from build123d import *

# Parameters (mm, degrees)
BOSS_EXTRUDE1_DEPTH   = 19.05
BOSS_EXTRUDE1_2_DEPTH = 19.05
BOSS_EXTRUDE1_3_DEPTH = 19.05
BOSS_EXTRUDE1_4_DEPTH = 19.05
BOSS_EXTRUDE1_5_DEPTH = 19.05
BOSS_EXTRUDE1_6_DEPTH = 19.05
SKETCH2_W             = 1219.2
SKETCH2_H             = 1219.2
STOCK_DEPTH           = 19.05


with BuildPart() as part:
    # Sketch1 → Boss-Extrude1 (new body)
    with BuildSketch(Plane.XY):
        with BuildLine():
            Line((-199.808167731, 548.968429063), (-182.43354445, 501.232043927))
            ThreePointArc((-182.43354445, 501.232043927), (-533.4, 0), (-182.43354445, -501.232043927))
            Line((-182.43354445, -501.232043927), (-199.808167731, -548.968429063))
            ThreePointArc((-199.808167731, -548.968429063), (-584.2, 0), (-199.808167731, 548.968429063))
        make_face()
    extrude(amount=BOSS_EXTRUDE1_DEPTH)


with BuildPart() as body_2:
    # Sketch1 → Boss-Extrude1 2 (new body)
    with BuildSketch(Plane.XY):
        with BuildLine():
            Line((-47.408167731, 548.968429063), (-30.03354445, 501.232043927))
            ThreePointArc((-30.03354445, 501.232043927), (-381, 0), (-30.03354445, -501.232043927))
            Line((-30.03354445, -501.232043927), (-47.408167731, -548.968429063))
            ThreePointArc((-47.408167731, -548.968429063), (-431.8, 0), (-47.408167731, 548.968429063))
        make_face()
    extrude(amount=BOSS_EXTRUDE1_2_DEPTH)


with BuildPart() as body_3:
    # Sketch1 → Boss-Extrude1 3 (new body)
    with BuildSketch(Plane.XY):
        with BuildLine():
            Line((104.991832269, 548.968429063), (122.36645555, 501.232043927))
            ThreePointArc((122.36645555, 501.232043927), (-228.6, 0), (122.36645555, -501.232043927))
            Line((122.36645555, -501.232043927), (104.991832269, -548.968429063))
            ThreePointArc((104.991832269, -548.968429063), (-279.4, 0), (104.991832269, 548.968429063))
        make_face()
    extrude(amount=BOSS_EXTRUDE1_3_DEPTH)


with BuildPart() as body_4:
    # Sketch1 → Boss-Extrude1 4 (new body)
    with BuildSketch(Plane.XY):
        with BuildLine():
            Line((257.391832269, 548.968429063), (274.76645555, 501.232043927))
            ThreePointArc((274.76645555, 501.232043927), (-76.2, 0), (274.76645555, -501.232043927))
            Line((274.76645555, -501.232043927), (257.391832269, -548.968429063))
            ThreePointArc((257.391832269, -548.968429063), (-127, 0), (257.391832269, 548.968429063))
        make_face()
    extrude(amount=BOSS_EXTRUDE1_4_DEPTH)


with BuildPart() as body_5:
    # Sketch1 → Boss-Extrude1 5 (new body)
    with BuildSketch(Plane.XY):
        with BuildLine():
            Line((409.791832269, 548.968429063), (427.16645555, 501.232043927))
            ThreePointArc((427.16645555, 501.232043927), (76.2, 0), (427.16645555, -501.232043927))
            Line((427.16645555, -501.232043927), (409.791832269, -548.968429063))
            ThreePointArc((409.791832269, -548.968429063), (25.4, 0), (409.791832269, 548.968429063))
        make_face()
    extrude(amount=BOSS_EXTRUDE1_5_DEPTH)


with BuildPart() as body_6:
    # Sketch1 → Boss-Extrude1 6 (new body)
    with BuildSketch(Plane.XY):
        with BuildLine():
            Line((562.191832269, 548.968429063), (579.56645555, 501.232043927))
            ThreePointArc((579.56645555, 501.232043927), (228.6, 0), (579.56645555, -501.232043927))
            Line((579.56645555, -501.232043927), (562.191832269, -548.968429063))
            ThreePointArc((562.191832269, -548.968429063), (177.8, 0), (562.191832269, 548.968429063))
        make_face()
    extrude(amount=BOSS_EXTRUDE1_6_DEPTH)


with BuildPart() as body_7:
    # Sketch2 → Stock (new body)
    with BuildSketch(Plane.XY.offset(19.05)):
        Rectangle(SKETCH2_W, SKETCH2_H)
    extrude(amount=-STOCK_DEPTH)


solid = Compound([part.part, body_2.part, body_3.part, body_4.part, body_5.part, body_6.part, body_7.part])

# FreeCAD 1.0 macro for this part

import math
import FreeCAD as App
import Part
import Sketcher
Q = App.Units.Quantity

doc = App.newDocument("Part")
body = doc.addObject("PartDesign::Body", "Body")

sketch1 = body.newObject("Sketcher::SketchObject", "Sketch")
sketch1.AttachmentSupport = (doc.getObject("XY_Plane"), [""])
sketch1.MapMode = "FlatFace"
sketch1.addGeometry([
    Part.LineSegment(App.Vector(-182, 501, 0), App.Vector(-200, 549, 0)),
    Part.ArcOfCircle(Part.Circle(App.Vector(0, 0, 0), App.Vector(0, 0, 1), 584), math.radians(110), math.radians(250)),
    Part.LineSegment(App.Vector(-200, -549, 0), App.Vector(-182, -501, 0)),
    Part.ArcOfCircle(Part.Circle(App.Vector(0, 0, 0), App.Vector(0, 0, 1), 533), math.radians(110), math.radians(250)),
], False)
sketch1.addConstraint([
    Sketcher.Constraint("Coincident", 0, 2, 1, 1),
    Sketcher.Constraint("Coincident", 1, 2, 2, 1),
    Sketcher.Constraint("Coincident", 2, 2, 3, 2),
    Sketcher.Constraint("Coincident", 3, 1, 0, 1),
    Sketcher.Constraint("Coincident", 1, 3, -1, 1),
    Sketcher.Constraint("Coincident", 3, 3, -1, 1),
    Sketcher.Constraint("Vertical", 0, 2, 1, 2),
    Sketcher.Constraint("Vertical", 2, 2, 3, 1),
    Sketcher.Constraint("Radius", 1, Q("23 in")),
    Sketcher.Constraint("Radius", 3, Q("21 in")),
    Sketcher.Constraint("Angle", 0, Q("110 deg")),
    Sketcher.Constraint("DistanceY", -1, 1, 0, 2, 548.968429),
])
pad1 = body.newObject("PartDesign::Pad", "Pad")
pad1.Profile = sketch1
pad1.Length = Q("0.75 in")
body2 = doc.addObject("PartDesign::Body", "Body001")

sketch2 = body2.newObject("Sketcher::SketchObject", "Sketch001")
sketch2.AttachmentSupport = (doc.getObject("XY_Plane001"), [""])
sketch2.MapMode = "FlatFace"
sketch2.addGeometry([
    Part.LineSegment(App.Vector(-30, 501, 0), App.Vector(-47, 549, 0)),
    Part.ArcOfCircle(Part.Circle(App.Vector(152, 0, 0), App.Vector(0, 0, 1), 584), math.radians(110), math.radians(250)),
    Part.LineSegment(App.Vector(-47, -549, 0), App.Vector(-30, -501, 0)),
    Part.ArcOfCircle(Part.Circle(App.Vector(152, 0, 0), App.Vector(0, 0, 1), 533), math.radians(110), math.radians(250)),
], False)
sketch2.addConstraint([
    Sketcher.Constraint("Coincident", 0, 2, 1, 1),
    Sketcher.Constraint("Coincident", 1, 2, 2, 1),
    Sketcher.Constraint("Coincident", 2, 2, 3, 2),
    Sketcher.Constraint("Coincident", 3, 1, 0, 1),
    Sketcher.Constraint("Coincident", 3, 3, 1, 3),
    Sketcher.Constraint("Symmetric", 0, 2, 1, 2, -1),
    Sketcher.Constraint("Vertical", 2, 2, 3, 1),
    Sketcher.Constraint("Radius", 1, Q("23 in")),
    Sketcher.Constraint("Radius", 3, Q("21 in")),
    Sketcher.Constraint("DistanceX", -1, 1, 1, 3, Q("6 in")),
    Sketcher.Constraint("Angle", 0, Q("110 deg")),
    Sketcher.Constraint("DistanceY", -1, 1, 0, 2, 548.968429),
])
pad2 = body2.newObject("PartDesign::Pad", "Pad001")
pad2.Profile = sketch2
pad2.Length = Q("0.75 in")
body3 = doc.addObject("PartDesign::Body", "Body002")

sketch3 = body3.newObject("Sketcher::SketchObject", "Sketch002")
sketch3.AttachmentSupport = (doc.getObject("XY_Plane002"), [""])
sketch3.MapMode = "FlatFace"
sketch3.addGeometry([
    Part.LineSegment(App.Vector(122, 501, 0), App.Vector(105, 549, 0)),
    Part.ArcOfCircle(Part.Circle(App.Vector(305, 0, 0), App.Vector(0, 0, 1), 584), math.radians(110), math.radians(250)),
    Part.LineSegment(App.Vector(105, -549, 0), App.Vector(122, -501, 0)),
    Part.ArcOfCircle(Part.Circle(App.Vector(305, 0, 0), App.Vector(0, 0, 1), 533), math.radians(110), math.radians(250)),
], False)
sketch3.addConstraint([
    Sketcher.Constraint("Coincident", 0, 2, 1, 1),
    Sketcher.Constraint("Coincident", 1, 2, 2, 1),
    Sketcher.Constraint("Coincident", 2, 2, 3, 2),
    Sketcher.Constraint("Coincident", 3, 1, 0, 1),
    Sketcher.Constraint("Coincident", 3, 3, 1, 3),
    Sketcher.Constraint("Symmetric", 0, 2, 1, 2, -1),
    Sketcher.Constraint("Vertical", 2, 2, 3, 1),
    Sketcher.Constraint("Radius", 1, Q("23 in")),
    Sketcher.Constraint("Radius", 3, Q("21 in")),
    Sketcher.Constraint("DistanceX", -1, 1, 1, 3, Q("12 in")),
    Sketcher.Constraint("Angle", 0, Q("110 deg")),
    Sketcher.Constraint("DistanceY", -1, 1, 0, 2, 548.968429),
])
pad3 = body3.newObject("PartDesign::Pad", "Pad002")
pad3.Profile = sketch3
pad3.Length = Q("0.75 in")
body4 = doc.addObject("PartDesign::Body", "Body003")

sketch4 = body4.newObject("Sketcher::SketchObject", "Sketch003")
sketch4.AttachmentSupport = (doc.getObject("XY_Plane003"), [""])
sketch4.MapMode = "FlatFace"
sketch4.addGeometry([
    Part.LineSegment(App.Vector(275, 501, 0), App.Vector(257, 549, 0)),
    Part.ArcOfCircle(Part.Circle(App.Vector(457, 0, 0), App.Vector(0, 0, 1), 584), math.radians(110), math.radians(250)),
    Part.LineSegment(App.Vector(257, -549, 0), App.Vector(275, -501, 0)),
    Part.ArcOfCircle(Part.Circle(App.Vector(457, 0, 0), App.Vector(0, 0, 1), 533), math.radians(110), math.radians(250)),
], False)
sketch4.addConstraint([
    Sketcher.Constraint("Coincident", 0, 2, 1, 1),
    Sketcher.Constraint("Coincident", 1, 2, 2, 1),
    Sketcher.Constraint("Coincident", 2, 2, 3, 2),
    Sketcher.Constraint("Coincident", 3, 1, 0, 1),
    Sketcher.Constraint("Coincident", 3, 3, 1, 3),
    Sketcher.Constraint("Symmetric", 0, 2, 1, 2, -1),
    Sketcher.Constraint("Vertical", 2, 2, 3, 1),
    Sketcher.Constraint("Radius", 1, Q("23 in")),
    Sketcher.Constraint("Radius", 3, Q("21 in")),
    Sketcher.Constraint("DistanceX", -1, 1, 1, 3, Q("18 in")),
    Sketcher.Constraint("Angle", 0, Q("110 deg")),
    Sketcher.Constraint("DistanceY", -1, 1, 0, 2, 548.968429),
])
pad4 = body4.newObject("PartDesign::Pad", "Pad003")
pad4.Profile = sketch4
pad4.Length = Q("0.75 in")
body5 = doc.addObject("PartDesign::Body", "Body004")

sketch5 = body5.newObject("Sketcher::SketchObject", "Sketch004")
sketch5.AttachmentSupport = (doc.getObject("XY_Plane004"), [""])
sketch5.MapMode = "FlatFace"
sketch5.addGeometry([
    Part.LineSegment(App.Vector(427, 501, 0), App.Vector(410, 549, 0)),
    Part.ArcOfCircle(Part.Circle(App.Vector(610, 0, 0), App.Vector(0, 0, 1), 584), math.radians(110), math.radians(250)),
    Part.LineSegment(App.Vector(410, -549, 0), App.Vector(427, -501, 0)),
    Part.ArcOfCircle(Part.Circle(App.Vector(610, 0, 0), App.Vector(0, 0, 1), 533), math.radians(110), math.radians(250)),
], False)
sketch5.addConstraint([
    Sketcher.Constraint("Coincident", 0, 2, 1, 1),
    Sketcher.Constraint("Coincident", 1, 2, 2, 1),
    Sketcher.Constraint("Coincident", 2, 2, 3, 2),
    Sketcher.Constraint("Coincident", 3, 1, 0, 1),
    Sketcher.Constraint("Coincident", 3, 3, 1, 3),
    Sketcher.Constraint("Symmetric", 0, 2, 1, 2, -1),
    Sketcher.Constraint("Vertical", 2, 2, 3, 1),
    Sketcher.Constraint("Radius", 1, Q("23 in")),
    Sketcher.Constraint("Radius", 3, Q("21 in")),
    Sketcher.Constraint("DistanceX", -1, 1, 1, 3, Q("24 in")),
    Sketcher.Constraint("Angle", 0, Q("110 deg")),
    Sketcher.Constraint("DistanceY", -1, 1, 0, 2, 548.968429),
])
pad5 = body5.newObject("PartDesign::Pad", "Pad004")
pad5.Profile = sketch5
pad5.Length = Q("0.75 in")
body6 = doc.addObject("PartDesign::Body", "Body005")

sketch6 = body6.newObject("Sketcher::SketchObject", "Sketch005")
sketch6.AttachmentSupport = (doc.getObject("XY_Plane005"), [""])
sketch6.MapMode = "FlatFace"
sketch6.addGeometry([
    Part.LineSegment(App.Vector(580, 501, 0), App.Vector(562, 549, 0)),
    Part.ArcOfCircle(Part.Circle(App.Vector(762, 0, 0), App.Vector(0, 0, 1), 584), math.radians(110), math.radians(250)),
    Part.LineSegment(App.Vector(562, -549, 0), App.Vector(580, -501, 0)),
    Part.ArcOfCircle(Part.Circle(App.Vector(762, 0, 0), App.Vector(0, 0, 1), 533), math.radians(110), math.radians(250)),
], False)
sketch6.addConstraint([
    Sketcher.Constraint("Coincident", 0, 2, 1, 1),
    Sketcher.Constraint("Coincident", 1, 2, 2, 1),
    Sketcher.Constraint("Coincident", 2, 2, 3, 2),
    Sketcher.Constraint("Coincident", 3, 1, 0, 1),
    Sketcher.Constraint("Coincident", 3, 3, 1, 3),
    Sketcher.Constraint("Symmetric", 0, 2, 1, 2, -1),
    Sketcher.Constraint("Vertical", 2, 2, 3, 1),
    Sketcher.Constraint("Radius", 1, Q("23 in")),
    Sketcher.Constraint("Radius", 3, Q("21 in")),
    Sketcher.Constraint("DistanceX", -1, 1, 1, 3, Q("30 in")),
    Sketcher.Constraint("Angle", 0, Q("110 deg")),
    Sketcher.Constraint("DistanceY", -1, 1, 0, 2, 548.968429),
])
pad6 = body6.newObject("PartDesign::Pad", "Pad005")
pad6.Profile = sketch6
pad6.Length = Q("0.75 in")
body7 = doc.addObject("PartDesign::Body", "Body006")

sketch7 = body7.newObject("Sketcher::SketchObject", "Sketch006")
sketch7.AttachmentSupport = (doc.getObject("XY_Plane006"), [""])
sketch7.MapMode = "FlatFace"
sketch7.AttachmentOffset = App.Placement(App.Vector(0, 0, 0.75 * 25.4), App.Rotation())
sketch7.addGeometry([
    Part.LineSegment(App.Vector(-610, 610, 0), App.Vector(-610, -610, 0)),
    Part.LineSegment(App.Vector(-610, -610, 0), App.Vector(610, -610, 0)),
    Part.LineSegment(App.Vector(610, -610, 0), App.Vector(610, 610, 0)),
    Part.LineSegment(App.Vector(610, 610, 0), App.Vector(-610, 610, 0)),
], False)
sketch7.addConstraint([
    Sketcher.Constraint("Coincident", 0, 2, 1, 1),
    Sketcher.Constraint("Coincident", 1, 2, 2, 1),
    Sketcher.Constraint("Coincident", 2, 2, 3, 1),
    Sketcher.Constraint("Coincident", 3, 2, 0, 1),
    Sketcher.Constraint("Vertical", 0),
    Sketcher.Constraint("Horizontal", 1),
    Sketcher.Constraint("Vertical", 2),
    Sketcher.Constraint("Horizontal", 3),
    Sketcher.Constraint("Symmetric", 0, 2, 2, 2, -1, 1),
    Sketcher.Constraint("Equal", 3, 0),
    Sketcher.Constraint("DistanceX", 1, 1, 1, 2, Q("48 in")),
])
pad7 = body7.newObject("PartDesign::Pad", "Pad006")
pad7.Profile = sketch7
pad7.Length = Q("0.75 in")
pad7.Reversed = True

doc.recompute()
